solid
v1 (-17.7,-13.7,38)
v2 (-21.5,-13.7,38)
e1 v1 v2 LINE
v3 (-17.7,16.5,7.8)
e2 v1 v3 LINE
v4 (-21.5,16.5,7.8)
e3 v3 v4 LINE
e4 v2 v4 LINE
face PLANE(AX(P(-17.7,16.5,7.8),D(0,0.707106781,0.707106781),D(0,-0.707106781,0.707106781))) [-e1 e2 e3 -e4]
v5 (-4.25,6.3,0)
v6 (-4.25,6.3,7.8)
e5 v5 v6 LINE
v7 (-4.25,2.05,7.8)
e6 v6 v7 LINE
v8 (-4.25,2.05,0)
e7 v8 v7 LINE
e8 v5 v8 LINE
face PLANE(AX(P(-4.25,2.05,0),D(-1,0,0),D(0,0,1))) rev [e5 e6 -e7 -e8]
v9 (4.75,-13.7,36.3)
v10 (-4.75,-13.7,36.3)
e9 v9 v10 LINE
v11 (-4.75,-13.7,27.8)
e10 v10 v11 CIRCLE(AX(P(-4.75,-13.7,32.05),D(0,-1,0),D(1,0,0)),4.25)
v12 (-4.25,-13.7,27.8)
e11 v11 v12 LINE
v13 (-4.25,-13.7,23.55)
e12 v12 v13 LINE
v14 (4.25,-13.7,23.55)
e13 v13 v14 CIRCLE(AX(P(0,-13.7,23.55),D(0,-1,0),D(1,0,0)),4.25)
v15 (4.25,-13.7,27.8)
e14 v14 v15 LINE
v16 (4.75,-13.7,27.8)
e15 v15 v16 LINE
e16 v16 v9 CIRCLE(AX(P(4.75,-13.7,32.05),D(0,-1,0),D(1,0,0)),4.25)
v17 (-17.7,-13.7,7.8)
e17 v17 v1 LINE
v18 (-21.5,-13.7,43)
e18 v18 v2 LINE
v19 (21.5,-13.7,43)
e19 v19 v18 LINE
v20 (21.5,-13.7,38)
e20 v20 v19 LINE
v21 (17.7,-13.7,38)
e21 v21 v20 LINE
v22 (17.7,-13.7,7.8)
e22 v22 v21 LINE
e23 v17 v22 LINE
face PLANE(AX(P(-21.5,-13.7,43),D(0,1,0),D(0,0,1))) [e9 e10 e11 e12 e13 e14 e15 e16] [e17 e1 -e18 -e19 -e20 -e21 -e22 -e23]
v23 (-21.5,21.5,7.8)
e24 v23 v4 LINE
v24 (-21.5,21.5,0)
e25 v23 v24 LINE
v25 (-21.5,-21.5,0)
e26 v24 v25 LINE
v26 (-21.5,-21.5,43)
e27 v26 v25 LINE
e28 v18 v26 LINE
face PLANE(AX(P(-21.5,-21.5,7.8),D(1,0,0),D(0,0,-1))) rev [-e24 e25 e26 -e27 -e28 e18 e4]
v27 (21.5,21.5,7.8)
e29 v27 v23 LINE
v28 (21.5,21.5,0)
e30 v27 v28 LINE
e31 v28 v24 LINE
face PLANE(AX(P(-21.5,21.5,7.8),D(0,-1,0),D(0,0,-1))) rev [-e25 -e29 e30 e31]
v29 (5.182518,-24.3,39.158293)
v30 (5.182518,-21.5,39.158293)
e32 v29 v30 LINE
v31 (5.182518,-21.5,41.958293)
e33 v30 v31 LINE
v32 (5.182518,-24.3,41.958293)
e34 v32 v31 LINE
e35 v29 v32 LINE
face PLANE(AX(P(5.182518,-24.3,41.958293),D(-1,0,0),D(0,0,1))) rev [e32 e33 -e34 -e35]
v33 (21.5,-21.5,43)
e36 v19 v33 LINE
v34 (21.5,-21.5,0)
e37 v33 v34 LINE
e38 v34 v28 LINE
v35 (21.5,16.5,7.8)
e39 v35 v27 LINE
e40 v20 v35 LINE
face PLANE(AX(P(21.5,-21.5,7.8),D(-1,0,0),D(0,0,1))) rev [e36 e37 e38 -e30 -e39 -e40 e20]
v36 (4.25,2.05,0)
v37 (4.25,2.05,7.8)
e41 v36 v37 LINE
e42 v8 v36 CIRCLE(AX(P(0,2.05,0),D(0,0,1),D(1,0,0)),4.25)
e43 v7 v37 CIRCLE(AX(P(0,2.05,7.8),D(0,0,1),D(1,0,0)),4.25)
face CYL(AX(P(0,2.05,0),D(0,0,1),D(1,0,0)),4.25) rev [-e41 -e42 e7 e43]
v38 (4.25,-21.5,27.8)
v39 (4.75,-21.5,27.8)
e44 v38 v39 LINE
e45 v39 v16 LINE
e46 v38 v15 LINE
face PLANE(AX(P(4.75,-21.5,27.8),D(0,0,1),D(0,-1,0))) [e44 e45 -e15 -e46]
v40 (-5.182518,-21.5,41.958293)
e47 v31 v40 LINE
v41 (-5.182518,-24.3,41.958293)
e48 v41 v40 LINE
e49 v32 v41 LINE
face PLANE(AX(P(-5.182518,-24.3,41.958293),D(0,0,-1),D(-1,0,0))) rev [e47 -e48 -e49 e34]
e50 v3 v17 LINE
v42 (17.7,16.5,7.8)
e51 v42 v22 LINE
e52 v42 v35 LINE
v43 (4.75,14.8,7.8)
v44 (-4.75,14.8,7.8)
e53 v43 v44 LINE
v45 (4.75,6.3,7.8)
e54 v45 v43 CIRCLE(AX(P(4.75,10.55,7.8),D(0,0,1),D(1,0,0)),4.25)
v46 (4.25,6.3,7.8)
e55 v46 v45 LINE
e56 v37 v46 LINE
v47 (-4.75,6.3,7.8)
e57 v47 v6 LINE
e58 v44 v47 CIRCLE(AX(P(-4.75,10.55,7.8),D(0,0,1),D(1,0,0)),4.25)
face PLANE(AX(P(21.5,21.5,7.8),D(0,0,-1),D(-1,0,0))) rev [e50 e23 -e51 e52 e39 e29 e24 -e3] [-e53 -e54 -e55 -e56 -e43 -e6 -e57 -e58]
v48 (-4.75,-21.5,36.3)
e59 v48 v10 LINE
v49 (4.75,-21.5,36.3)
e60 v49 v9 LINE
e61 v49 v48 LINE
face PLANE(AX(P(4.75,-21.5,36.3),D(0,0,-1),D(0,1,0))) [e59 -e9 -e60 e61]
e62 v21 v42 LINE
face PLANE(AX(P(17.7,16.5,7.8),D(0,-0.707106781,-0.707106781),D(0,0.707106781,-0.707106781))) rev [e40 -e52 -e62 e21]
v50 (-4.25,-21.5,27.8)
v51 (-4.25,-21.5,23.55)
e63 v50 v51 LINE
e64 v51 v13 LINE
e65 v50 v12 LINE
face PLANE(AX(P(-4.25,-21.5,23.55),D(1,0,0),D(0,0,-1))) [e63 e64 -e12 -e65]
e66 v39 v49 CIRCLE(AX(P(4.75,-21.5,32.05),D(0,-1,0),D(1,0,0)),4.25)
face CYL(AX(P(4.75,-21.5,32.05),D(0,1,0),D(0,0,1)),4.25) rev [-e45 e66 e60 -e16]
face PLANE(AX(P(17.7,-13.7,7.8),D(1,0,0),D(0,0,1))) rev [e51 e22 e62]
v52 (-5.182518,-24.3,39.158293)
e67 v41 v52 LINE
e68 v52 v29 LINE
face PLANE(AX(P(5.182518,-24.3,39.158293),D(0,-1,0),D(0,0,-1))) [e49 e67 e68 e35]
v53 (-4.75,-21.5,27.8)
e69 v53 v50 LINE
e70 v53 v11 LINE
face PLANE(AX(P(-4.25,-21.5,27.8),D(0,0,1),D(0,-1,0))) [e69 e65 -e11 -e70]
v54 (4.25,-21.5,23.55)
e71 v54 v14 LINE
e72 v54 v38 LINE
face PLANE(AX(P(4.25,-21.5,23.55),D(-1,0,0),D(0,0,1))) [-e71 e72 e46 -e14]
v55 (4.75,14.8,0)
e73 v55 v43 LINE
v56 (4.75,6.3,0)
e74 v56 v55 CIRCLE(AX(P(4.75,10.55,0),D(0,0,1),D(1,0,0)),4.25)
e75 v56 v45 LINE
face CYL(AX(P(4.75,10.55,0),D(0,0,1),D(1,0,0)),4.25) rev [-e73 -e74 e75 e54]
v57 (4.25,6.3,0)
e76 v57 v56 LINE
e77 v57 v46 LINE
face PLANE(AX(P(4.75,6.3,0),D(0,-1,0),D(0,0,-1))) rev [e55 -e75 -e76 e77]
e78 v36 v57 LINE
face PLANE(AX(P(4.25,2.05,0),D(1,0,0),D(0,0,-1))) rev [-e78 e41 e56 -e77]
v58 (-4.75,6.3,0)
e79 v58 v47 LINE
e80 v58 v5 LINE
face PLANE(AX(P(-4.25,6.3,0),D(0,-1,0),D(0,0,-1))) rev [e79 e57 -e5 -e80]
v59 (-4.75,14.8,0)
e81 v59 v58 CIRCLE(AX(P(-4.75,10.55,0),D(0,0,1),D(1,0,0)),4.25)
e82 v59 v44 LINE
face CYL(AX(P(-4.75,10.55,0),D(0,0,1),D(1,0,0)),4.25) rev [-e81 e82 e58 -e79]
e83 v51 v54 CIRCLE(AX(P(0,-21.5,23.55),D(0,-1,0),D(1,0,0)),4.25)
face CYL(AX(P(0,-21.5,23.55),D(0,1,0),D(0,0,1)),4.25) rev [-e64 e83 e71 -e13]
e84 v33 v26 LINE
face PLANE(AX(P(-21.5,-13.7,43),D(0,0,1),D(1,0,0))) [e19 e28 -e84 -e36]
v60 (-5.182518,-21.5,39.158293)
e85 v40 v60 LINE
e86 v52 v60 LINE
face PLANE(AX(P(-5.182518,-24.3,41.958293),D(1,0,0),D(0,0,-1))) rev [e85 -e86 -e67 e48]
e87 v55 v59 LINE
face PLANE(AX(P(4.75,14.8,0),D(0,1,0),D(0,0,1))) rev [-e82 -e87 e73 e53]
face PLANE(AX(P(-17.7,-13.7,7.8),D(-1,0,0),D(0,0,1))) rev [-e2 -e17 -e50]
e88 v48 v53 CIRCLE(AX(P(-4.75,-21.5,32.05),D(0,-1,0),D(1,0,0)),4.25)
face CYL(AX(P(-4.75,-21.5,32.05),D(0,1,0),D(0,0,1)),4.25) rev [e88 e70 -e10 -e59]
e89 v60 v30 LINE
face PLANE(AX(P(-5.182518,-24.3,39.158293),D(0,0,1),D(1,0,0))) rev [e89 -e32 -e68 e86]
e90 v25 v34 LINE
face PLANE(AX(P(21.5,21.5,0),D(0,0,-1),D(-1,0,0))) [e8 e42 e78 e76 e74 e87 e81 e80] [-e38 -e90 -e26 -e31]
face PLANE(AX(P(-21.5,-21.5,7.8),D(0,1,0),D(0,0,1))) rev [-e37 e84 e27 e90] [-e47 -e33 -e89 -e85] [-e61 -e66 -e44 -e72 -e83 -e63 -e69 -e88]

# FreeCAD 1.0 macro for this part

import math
import FreeCAD as App
import Part
import Sketcher


def add_polygon(sketch, points):
    """Adds a closed chain of lines whose ends are joined by coincident constraints."""
    first, n = sketch.GeometryCount, len(points)
    for a, b in zip(points, points[1:] + points[:1]):
        sketch.addGeometry(Part.LineSegment(App.Vector(*a, 0), App.Vector(*b, 0)), False)
    for i in range(n):
        sketch.addConstraint(Sketcher.Constraint("Coincident", first + i, 2, first + (i + 1) % n, 1))

doc = App.newDocument("Part")
params = doc.addObject("Spreadsheet::Sheet", "Params")
for row, (alias, value) in enumerate([
    ("sketch1_width", "43 mm"),
    ("pad1_length", "7.8 mm"),
    ("sketch2_width", "43 mm"),
    ("pad2_length", "7.8 mm"),
    ("sketch3_width", "30.2 mm"),
    ("pad3_length", "3.8 mm"),
    ("sketch4_radius", "4.25 mm"),
    ("sketch4_width", "0.5 mm"),
    ("sketch4_height", "4.25 mm"),
    ("sketch5_height", "2.8 mm"),
    ("pad4_length", "2.8 mm"),
], start=1):
    params.set(f"A{row}", alias)
    params.set(f"B{row}", "=" + value)
    params.setAlias(f"B{row}", alias)

body = doc.addObject("PartDesign::Body", "Body")

# Sketch on XY plane
sketch1 = body.newObject("Sketcher::SketchObject", "Sketch")
sketch1.AttachmentSupport = (doc.getObject("XY_Plane"), [""])
sketch1.MapMode = "FlatFace"
add_polygon(sketch1, [(-21.5, 21.5), (-21.5, -21.5), (21.5, -21.5), (21.5, 21.5)])  # lines 0-3
sketch1.addConstraint([
    Sketcher.Constraint("Vertical", 0),
    Sketcher.Constraint("Horizontal", 1),
    Sketcher.Constraint("Vertical", 2),
    Sketcher.Constraint("Horizontal", 3),
    Sketcher.Constraint("Symmetric", 0, 2, 2, 2, -1, 1),
    Sketcher.Constraint("Equal", 3, 0),
    Sketcher.Constraint("DistanceX", 1, 1, 1, 2, 43.0),
])
sketch1.setExpression("Constraints[10]", "Params.sketch1_width")
pad1 = body.newObject("PartDesign::Pad", "Pad")
pad1.Profile = sketch1
pad1.setExpression("Length", "Params.pad1_length")

# Sketch on XZ plane
sketch2 = body.newObject("Sketcher::SketchObject", "Sketch001")
sketch2.AttachmentSupport = (doc.getObject("XZ_Plane"), [""])
sketch2.MapMode = "FlatFace"
sketch2.AttachmentOffset = App.Placement(App.Vector(0, 0, 21.5), App.Rotation())
add_polygon(sketch2, [(-21.5, 43), (-21.5, 0), (21.5, 0), (21.5, 43)])  # lines 0-3
sketch2.addConstraint([
    Sketcher.Constraint("Vertical", 0),
    Sketcher.Constraint("Horizontal", 1),
    Sketcher.Constraint("Vertical", 2),
    Sketcher.Constraint("Horizontal", 3),
    Sketcher.Constraint("Symmetric", 0, 2, 1, 2, -1, 1),
    Sketcher.Constraint("Equal", 3, 0),
    Sketcher.Constraint("DistanceX", 1, 1, 1, 2, 43.0),
])
sketch2.setExpression("Constraints[10]", "Params.sketch2_width")
pad2 = body.newObject("PartDesign::Pad", "Pad001")
pad2.Profile = sketch2
pad2.setExpression("Length", "Params.pad2_length")
pad2.Reversed = True

# Sketch on YZ plane
sketch3 = body.newObject("Sketcher::SketchObject", "Sketch002")
sketch3.AttachmentSupport = (doc.getObject("YZ_Plane"), [""])
sketch3.MapMode = "FlatFace"
sketch3.AttachmentOffset = App.Placement(App.Vector(0, 0, -21.5), App.Rotation())
add_polygon(sketch3, [(-13.7, 38), (16.5, 7.8), (-13.7, 7.8)])  # lines 0-2
sketch3.addConstraint([
    Sketcher.Constraint("Horizontal", 1),
    Sketcher.Constraint("Vertical", 2),
    Sketcher.Constraint("Equal", 1, 2),
    Sketcher.Constraint("DistanceX", 1, 2, 1, 1, 30.2),
    Sketcher.Constraint("DistanceY", -1, 1, 2, 2, 38.0),
    Sketcher.Constraint("DistanceX", -1, 1, 0, 2, 16.5),
])
sketch3.setExpression("Constraints[6]", "Params.sketch3_width")
pad3 = body.newObject("PartDesign::Pad", "Pad002")
pad3.Profile = sketch3
pad3.setExpression("Length", "Params.pad3_length")
doc.recompute()

mirrored = body.newObject("PartDesign::Mirrored", "Mirrored")
mirrored.Originals = [pad3]
mirrored.MirrorPlane = (doc.getObject("YZ_Plane"), [""])
body.Tip = mirrored

# Sketch on XY plane
sketch4 = body.newObject("Sketcher::SketchObject", "Sketch003")
sketch4.AttachmentSupport = (doc.getObject("XY_Plane"), [""])
sketch4.MapMode = "FlatFace"
sketch4.AttachmentOffset = App.Placement(App.Vector(0, 0, 7.8), App.Rotation())
sketch4.addGeometry([
    Part.LineSegment(App.Vector(-4.25, 6.3, 0), App.Vector(-4.25, 2.05, 0)),  # 0
    Part.ArcOfCircle(Part.Circle(App.Vector(0, 2.05, 0), App.Vector(0, 0, 1), 4.25), math.radians(180), math.radians(360)),  # 1
    Part.LineSegment(App.Vector(4.25, 2.05, 0), App.Vector(4.25, 6.3, 0)),  # 2
    Part.LineSegment(App.Vector(4.25, 6.3, 0), App.Vector(4.75, 6.3, 0)),  # 3
    Part.ArcOfCircle(Part.Circle(App.Vector(4.75, 10.55, 0), App.Vector(0, 0, 1), 4.25), math.radians(-90), math.radians(90)),  # 4
    Part.LineSegment(App.Vector(4.75, 14.8, 0), App.Vector(-4.75, 14.8, 0)),  # 5
    Part.ArcOfCircle(Part.Circle(App.Vector(-4.75, 10.55, 0), App.Vector(0, 0, 1), 4.25), math.radians(90), math.radians(270)),  # 6
    Part.LineSegment(App.Vector(-4.75, 6.3, 0), App.Vector(-4.25, 6.3, 0)),  # 7
], False)
sketch4.addConstraint([
    Sketcher.Constraint("Tangent", 0, 2, 1, 1),
    Sketcher.Constraint("Tangent", 1, 2, 2, 1),
    Sketcher.Constraint("Coincident", 2, 2, 3, 1),
    Sketcher.Constraint("Tangent", 3, 2, 4, 1),
    Sketcher.Constraint("Tangent", 4, 2, 5, 1),
    Sketcher.Constraint("Tangent", 5, 2, 6, 1),
    Sketcher.Constraint("Tangent", 6, 2, 7, 1),
    Sketcher.Constraint("Coincident", 7, 2, 0, 1),
    Sketcher.Constraint("Vertical", 0),
    Sketcher.Constraint("Vertical", 2),
    Sketcher.Constraint("Horizontal", 3),
    Sketcher.Constraint("Horizontal", 5),
    Sketcher.Constraint("Horizontal", 7),
    Sketcher.Constraint("Equal", 1, 4),
    Sketcher.Constraint("Equal", 4, 6),
    Sketcher.Constraint("PointOnObject", 1, 3, -2),
    Sketcher.Constraint("Equal", 3, 7),
    Sketcher.Constraint("Radius", 1, 4.25),
    Sketcher.Constraint("DistanceX", 3, 1, 3, 2, 0.5),
    Sketcher.Constraint("DistanceY", 0, 2, 0, 1, 4.25),
    Sketcher.Constraint("DistanceY", -1, 1, 2, 2, 6.3),
])
sketch4.setExpression("Constraints[17]", "Params.sketch4_radius")
sketch4.setExpression("Constraints[18]", "Params.sketch4_width")
sketch4.setExpression("Constraints[19]", "Params.sketch4_height")
pocket1 = body.newObject("PartDesign::Pocket", "Pocket")
pocket1.Profile = sketch4
pocket1.Type = "ThroughAll"
doc.recompute()

datumplane = body.newObject("PartDesign::Plane", "DatumPlane")
datumplane.Placement = App.Placement(App.Vector(0, -10.75, 10.75), App.Rotation(App.Vector(0, -0.707106781, -0.707106781), App.Vector(-1, 0, 0), App.Vector(0, 0.707106781, -0.707106781), "ZXY"))
mirrored2 = body.newObject("PartDesign::Mirrored", "Mirrored001")
mirrored2.Originals = [pocket1]
mirrored2.MirrorPlane = (datumplane, [""])
body.Tip = mirrored2

# Sketch on XZ plane
sketch5 = body.newObject("Sketcher::SketchObject", "Sketch004")
sketch5.AttachmentSupport = (doc.getObject("XZ_Plane"), [""])
sketch5.MapMode = "FlatFace"
sketch5.AttachmentOffset = App.Placement(App.Vector(0, 0, 21.5), App.Rotation())
add_polygon(sketch5, [(-5.182518, 41.958293), (-5.182518, 39.158293), (5.182518, 39.158293), (5.182518, 41.958293)])  # lines 0-3
sketch5.addConstraint([
    Sketcher.Constraint("Vertical", 0),
    Sketcher.Constraint("Horizontal", 1),
    Sketcher.Constraint("Vertical", 2),
    Sketcher.Constraint("Horizontal", 3),
    Sketcher.Constraint("DistanceY", 0, 2, 0, 1, 2.8),
    Sketcher.Constraint("DistanceX", 1, 1, 1, 2, 10.365035),
    Sketcher.Constraint("DistanceX", 0, 2, -1, 1, 5.182518),
    Sketcher.Constraint("DistanceY", -1, 1, 0, 2, 39.158293),
])
sketch5.setExpression("Constraints[8]", "Params.sketch5_height")
pad4 = body.newObject("PartDesign::Pad", "Pad003")
pad4.Profile = sketch5
pad4.setExpression("Length", "Params.pad4_length")

doc.recompute()
